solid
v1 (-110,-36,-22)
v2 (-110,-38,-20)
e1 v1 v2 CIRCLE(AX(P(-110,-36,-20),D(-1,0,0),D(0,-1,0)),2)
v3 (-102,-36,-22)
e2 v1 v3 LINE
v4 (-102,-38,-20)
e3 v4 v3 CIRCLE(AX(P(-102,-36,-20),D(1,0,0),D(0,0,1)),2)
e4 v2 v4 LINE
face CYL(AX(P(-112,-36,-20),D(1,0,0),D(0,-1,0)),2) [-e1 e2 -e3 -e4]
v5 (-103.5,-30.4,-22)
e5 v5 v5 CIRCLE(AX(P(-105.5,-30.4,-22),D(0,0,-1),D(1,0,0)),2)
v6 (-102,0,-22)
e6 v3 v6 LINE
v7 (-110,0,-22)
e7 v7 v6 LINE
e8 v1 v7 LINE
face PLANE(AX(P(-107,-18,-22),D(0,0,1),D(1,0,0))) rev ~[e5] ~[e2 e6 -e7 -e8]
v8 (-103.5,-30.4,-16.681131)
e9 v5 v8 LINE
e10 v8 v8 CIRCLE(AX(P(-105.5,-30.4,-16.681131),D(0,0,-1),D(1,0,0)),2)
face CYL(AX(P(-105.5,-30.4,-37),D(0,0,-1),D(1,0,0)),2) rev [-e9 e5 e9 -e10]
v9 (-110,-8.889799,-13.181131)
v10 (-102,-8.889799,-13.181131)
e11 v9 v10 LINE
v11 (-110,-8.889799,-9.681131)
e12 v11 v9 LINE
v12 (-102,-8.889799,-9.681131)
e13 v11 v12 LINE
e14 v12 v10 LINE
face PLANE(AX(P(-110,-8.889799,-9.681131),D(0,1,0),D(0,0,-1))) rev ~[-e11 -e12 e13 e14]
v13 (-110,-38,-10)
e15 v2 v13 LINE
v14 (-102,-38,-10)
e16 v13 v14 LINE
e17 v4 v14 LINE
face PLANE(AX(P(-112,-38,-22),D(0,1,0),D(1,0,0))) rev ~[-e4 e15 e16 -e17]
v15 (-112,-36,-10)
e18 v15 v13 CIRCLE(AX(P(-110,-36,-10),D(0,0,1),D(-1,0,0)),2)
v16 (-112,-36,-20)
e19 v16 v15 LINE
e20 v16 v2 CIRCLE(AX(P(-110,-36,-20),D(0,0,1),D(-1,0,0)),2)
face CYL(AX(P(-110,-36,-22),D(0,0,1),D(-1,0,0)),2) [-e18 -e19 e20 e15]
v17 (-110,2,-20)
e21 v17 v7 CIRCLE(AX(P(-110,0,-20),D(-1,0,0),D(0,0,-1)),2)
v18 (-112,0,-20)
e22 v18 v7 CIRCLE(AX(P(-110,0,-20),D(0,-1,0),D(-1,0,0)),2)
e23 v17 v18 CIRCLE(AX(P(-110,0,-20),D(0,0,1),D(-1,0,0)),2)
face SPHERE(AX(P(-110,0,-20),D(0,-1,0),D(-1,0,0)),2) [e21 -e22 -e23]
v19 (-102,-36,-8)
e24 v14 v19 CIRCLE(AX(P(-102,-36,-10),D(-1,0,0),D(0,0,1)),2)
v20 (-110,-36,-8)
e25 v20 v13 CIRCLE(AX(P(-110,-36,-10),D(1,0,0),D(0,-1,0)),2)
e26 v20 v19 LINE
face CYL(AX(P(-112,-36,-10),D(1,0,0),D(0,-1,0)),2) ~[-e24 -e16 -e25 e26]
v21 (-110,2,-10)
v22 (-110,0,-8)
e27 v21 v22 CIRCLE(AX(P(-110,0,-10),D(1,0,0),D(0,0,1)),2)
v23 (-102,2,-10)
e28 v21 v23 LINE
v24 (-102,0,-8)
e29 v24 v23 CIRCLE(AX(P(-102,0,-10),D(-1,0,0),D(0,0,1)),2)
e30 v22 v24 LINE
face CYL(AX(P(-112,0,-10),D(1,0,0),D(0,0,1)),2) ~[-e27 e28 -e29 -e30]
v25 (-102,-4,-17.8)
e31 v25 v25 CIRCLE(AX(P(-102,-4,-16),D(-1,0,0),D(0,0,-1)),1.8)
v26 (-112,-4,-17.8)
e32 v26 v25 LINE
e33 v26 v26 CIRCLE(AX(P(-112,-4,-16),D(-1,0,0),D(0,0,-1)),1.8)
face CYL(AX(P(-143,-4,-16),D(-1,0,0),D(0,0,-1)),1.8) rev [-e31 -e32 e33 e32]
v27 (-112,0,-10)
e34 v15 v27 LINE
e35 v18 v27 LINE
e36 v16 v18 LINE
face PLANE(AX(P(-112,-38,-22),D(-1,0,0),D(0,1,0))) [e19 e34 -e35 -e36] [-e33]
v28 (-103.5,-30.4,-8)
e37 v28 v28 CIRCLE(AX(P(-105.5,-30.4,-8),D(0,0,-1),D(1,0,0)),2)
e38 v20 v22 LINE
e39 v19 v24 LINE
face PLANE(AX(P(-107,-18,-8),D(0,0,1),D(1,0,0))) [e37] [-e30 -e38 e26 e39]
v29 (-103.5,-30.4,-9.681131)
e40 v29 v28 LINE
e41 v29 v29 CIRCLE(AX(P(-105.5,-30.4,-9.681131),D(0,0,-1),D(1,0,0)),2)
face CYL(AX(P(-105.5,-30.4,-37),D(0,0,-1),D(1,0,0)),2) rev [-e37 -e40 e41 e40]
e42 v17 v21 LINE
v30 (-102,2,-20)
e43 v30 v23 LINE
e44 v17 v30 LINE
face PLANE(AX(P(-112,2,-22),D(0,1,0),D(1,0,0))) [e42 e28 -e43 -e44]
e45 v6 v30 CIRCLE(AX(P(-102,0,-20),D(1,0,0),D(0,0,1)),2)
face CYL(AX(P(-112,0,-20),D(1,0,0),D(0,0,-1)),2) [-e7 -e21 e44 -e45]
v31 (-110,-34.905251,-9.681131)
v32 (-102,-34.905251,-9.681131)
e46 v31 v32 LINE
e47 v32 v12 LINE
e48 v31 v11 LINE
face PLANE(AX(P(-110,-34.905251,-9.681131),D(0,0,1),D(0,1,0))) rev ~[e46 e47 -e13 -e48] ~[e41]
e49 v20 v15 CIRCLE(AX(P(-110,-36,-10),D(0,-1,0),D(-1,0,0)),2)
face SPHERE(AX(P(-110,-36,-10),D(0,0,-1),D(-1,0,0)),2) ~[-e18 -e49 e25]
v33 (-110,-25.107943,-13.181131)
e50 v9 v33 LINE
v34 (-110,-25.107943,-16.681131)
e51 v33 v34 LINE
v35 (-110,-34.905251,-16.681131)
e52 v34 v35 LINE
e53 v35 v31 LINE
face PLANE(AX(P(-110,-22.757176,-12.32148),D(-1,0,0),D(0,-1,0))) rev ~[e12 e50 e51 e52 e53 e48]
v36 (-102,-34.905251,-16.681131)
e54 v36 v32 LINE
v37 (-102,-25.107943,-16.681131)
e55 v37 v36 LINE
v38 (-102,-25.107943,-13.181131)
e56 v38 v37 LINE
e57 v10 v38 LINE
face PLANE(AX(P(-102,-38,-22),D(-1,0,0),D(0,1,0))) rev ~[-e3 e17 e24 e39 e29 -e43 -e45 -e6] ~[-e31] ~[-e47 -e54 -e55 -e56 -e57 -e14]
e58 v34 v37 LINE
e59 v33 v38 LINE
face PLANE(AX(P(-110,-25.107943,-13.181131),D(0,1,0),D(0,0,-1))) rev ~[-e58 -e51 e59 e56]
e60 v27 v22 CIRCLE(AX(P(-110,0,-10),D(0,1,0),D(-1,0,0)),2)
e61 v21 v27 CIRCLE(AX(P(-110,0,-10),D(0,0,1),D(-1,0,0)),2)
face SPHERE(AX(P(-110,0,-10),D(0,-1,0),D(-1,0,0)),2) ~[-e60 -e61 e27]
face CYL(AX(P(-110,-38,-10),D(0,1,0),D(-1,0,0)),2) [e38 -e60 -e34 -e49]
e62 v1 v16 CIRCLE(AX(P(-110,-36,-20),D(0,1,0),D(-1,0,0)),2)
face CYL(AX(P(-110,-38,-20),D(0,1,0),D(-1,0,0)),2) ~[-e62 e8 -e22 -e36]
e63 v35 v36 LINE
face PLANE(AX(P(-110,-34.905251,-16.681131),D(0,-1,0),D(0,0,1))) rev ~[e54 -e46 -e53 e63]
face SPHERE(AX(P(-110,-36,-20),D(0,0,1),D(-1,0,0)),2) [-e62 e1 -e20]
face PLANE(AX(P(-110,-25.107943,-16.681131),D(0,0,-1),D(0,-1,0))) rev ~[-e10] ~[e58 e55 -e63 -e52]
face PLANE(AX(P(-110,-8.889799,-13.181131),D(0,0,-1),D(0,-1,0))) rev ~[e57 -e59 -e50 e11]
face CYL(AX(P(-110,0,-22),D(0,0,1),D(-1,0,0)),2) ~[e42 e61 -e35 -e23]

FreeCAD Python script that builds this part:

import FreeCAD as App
import Part
import Sketcher
from FreeCAD import Vector


def edges_at(feature, points):
    """Names of the edges that pass closest to the given points."""
    edges = feature.Shape.Edges
    near = lambda p: min(range(len(edges)), key=lambda i: edges[i].distToShape(Part.Vertex(*p))[0])
    return sorted({f"Edge{near(p) + 1}" for p in points})


def add_polygon(sketch, points):
    """Adds a closed chain of lines whose ends are joined by coincident constraints."""
    first, n = sketch.GeometryCount, len(points)
    for a, b in zip(points, points[1:] + points[:1]):
        sketch.addGeometry(Part.LineSegment(App.Vector(*a, 0), App.Vector(*b, 0)), False)
    for i in range(n):
        sketch.addConstraint(Sketcher.Constraint("Coincident", first + i, 2, first + (i + 1) % n, 1))

doc = App.newDocument("Part")
body = doc.addObject("PartDesign::Body", "Body")

# Sketch on XY plane
sketch1 = doc.addObject("Sketcher::SketchObject", "Sketch")
body.addObject(sketch1)
sketch1.AttachmentSupport = (doc.XY_Plane, [""])
sketch1.MapMode = "FlatFace"
sketch1.AttachmentOffset = App.Placement(Vector(0, 0, -37), App.Rotation())
sketch1.addGeometry(Part.Circle(Vector(-105.5, -30.4, 0), Vector(0, 0, 1), 2), False)
sketch1.addConstraint([
    Sketcher.Constraint("Diameter", 0, 4.0),
    Sketcher.Constraint("DistanceX", 0, 3, -1, 1, 105.5),
    Sketcher.Constraint("DistanceY", 0, 3, -1, 1, 30.4),
])
pad1 = doc.addObject("PartDesign::Pad", "Pad")
body.addObject(pad1)
pad1.Profile = sketch1
pad1.Length = 50
body2 = doc.addObject("PartDesign::Body", "Body001")

# Sketch on YZ plane
sketch2 = doc.addObject("Sketcher::SketchObject", "Sketch001")
body2.addObject(sketch2)
sketch2.AttachmentSupport = (doc.getObject("YZ_Plane001"), [""])
sketch2.MapMode = "FlatFace"
add_polygon(sketch2, [(-8.9, -9.7), (-34.9, -9.7), (-34.9, -16.7), (-25.1, -16.7), (-25.1, -13.2), (-8.9, -13.2)])  # lines 0-5
sketch2.addConstraint([
    Sketcher.Constraint("Horizontal", 0),
    Sketcher.Constraint("Vertical", 1),
    Sketcher.Constraint("Horizontal", 2),
    Sketcher.Constraint("Vertical", 3),
    Sketcher.Constraint("Horizontal", 4),
    Sketcher.Constraint("Vertical", 5),
    Sketcher.Constraint("Equal", 3, 5),
    Sketcher.Constraint("DistanceY", 1, 2, 1, 1, 7.0),
    Sketcher.Constraint("DistanceX", 0, 2, 0, 1, 26.015452),
    Sketcher.Constraint("DistanceX", 2, 1, 2, 2, 9.797308),
    Sketcher.Constraint("DistanceX", 4, 2, -1, 1, 8.889799),
    Sketcher.Constraint("DistanceY", 0, 2, -1, 1, 9.681131),
])
pad2 = doc.addObject("PartDesign::Pad", "Pad001")
body2.addObject(pad2)
pad2.Profile = sketch2
pad2.Length = 30
body3 = doc.addObject("PartDesign::Body", "Body002")
doc.recompute()

body2.Placement = App.Placement(Vector(-110, 0, 0), App.Rotation(Vector(0, 0, 1), 0))
boolean = doc.addObject("PartDesign::Boolean", "Boolean")
body3.addObject(boolean)
boolean.Type = "Fuse"
boolean.addObjects([body2])
body4 = doc.addObject("PartDesign::Body", "Body003")
body4.AllowCompound = True

# Sketch on YZ plane
sketch3 = doc.addObject("Sketcher::SketchObject", "Sketch002")
body4.addObject(sketch3)
sketch3.AttachmentSupport = (doc.getObject("YZ_Plane003"), [""])
sketch3.MapMode = "FlatFace"
sketch3.AttachmentOffset = App.Placement(Vector(0, 0, -143), App.Rotation())
sketch3.addGeometry(Part.Circle(Vector(-4, -16, 0), Vector(0, 0, 1), 1.8), False)
sketch3.addConstraint([
    Sketcher.Constraint("Diameter", 0, 3.6),
    Sketcher.Constraint("DistanceX", 0, 3, -1, 1, 4.0),
    Sketcher.Constraint("DistanceY", 0, 3, -1, 1, 16.0),
])
pad3 = doc.addObject("PartDesign::Pad", "Pad002")
body4.addObject(pad3)
pad3.Profile = sketch3
pad3.Length = 50
doc.recompute()

boolean2 = doc.addObject("PartDesign::Boolean", "Boolean001")
body4.addObject(boolean2)
boolean2.Type = "Fuse"
boolean2.addObjects([body])
doc.recompute()

boolean3 = doc.addObject("PartDesign::Boolean", "Boolean002")
body4.addObject(boolean3)
boolean3.Type = "Fuse"
boolean3.addObjects([body3])
body5 = doc.addObject("PartDesign::Body", "Body004")

# Sketch on XY plane
sketch4 = doc.addObject("Sketcher::SketchObject", "Sketch003")
body5.addObject(sketch4)
sketch4.AttachmentSupport = (doc.getObject("XY_Plane004"), [""])
sketch4.MapMode = "FlatFace"
sketch4.AttachmentOffset = App.Placement(Vector(0, 0, -22), App.Rotation())
add_polygon(sketch4, [(-112, 2), (-112, -38), (-102, -38), (-102, 2)])  # lines 0-3
sketch4.addConstraint([
    Sketcher.Constraint("Vertical", 0),
    Sketcher.Constraint("Horizontal", 1),
    Sketcher.Constraint("Vertical", 2),
    Sketcher.Constraint("Horizontal", 3),
    Sketcher.Constraint("DistanceX", 1, 1, 1, 2, 10.0),
    Sketcher.Constraint("DistanceY", 0, 2, 0, 1, 40.0),
    Sketcher.Constraint("DistanceX", 0, 2, -1, 1, 112.0),
    Sketcher.Constraint("DistanceY", 0, 2, -1, 1, 38.0),
])
pad4 = doc.addObject("PartDesign::Pad", "Pad003")
body5.addObject(pad4)
pad4.Profile = sketch4
pad4.Length = 14
doc.recompute()

boolean4 = doc.addObject("PartDesign::Boolean", "Boolean003")
body5.addObject(boolean4)
boolean4.Type = "Cut"
boolean4.addObjects([body4])
doc.recompute()

fillet = doc.addObject("PartDesign::Fillet", "Fillet")
body5.addObject(fillet)
fillet.Base = (boolean4, edges_at(boolean4, [
    (-112, -38, -15),
    (-112, -18, -8),
    (-112, -18, -22),
    (-112, 2, -15),
    (-107, -38, -22),
    (-107, -38, -8),
    (-107, 2, -8),
    (-107, 2, -22),
]))
fillet.Radius = 2

doc.recompute()
